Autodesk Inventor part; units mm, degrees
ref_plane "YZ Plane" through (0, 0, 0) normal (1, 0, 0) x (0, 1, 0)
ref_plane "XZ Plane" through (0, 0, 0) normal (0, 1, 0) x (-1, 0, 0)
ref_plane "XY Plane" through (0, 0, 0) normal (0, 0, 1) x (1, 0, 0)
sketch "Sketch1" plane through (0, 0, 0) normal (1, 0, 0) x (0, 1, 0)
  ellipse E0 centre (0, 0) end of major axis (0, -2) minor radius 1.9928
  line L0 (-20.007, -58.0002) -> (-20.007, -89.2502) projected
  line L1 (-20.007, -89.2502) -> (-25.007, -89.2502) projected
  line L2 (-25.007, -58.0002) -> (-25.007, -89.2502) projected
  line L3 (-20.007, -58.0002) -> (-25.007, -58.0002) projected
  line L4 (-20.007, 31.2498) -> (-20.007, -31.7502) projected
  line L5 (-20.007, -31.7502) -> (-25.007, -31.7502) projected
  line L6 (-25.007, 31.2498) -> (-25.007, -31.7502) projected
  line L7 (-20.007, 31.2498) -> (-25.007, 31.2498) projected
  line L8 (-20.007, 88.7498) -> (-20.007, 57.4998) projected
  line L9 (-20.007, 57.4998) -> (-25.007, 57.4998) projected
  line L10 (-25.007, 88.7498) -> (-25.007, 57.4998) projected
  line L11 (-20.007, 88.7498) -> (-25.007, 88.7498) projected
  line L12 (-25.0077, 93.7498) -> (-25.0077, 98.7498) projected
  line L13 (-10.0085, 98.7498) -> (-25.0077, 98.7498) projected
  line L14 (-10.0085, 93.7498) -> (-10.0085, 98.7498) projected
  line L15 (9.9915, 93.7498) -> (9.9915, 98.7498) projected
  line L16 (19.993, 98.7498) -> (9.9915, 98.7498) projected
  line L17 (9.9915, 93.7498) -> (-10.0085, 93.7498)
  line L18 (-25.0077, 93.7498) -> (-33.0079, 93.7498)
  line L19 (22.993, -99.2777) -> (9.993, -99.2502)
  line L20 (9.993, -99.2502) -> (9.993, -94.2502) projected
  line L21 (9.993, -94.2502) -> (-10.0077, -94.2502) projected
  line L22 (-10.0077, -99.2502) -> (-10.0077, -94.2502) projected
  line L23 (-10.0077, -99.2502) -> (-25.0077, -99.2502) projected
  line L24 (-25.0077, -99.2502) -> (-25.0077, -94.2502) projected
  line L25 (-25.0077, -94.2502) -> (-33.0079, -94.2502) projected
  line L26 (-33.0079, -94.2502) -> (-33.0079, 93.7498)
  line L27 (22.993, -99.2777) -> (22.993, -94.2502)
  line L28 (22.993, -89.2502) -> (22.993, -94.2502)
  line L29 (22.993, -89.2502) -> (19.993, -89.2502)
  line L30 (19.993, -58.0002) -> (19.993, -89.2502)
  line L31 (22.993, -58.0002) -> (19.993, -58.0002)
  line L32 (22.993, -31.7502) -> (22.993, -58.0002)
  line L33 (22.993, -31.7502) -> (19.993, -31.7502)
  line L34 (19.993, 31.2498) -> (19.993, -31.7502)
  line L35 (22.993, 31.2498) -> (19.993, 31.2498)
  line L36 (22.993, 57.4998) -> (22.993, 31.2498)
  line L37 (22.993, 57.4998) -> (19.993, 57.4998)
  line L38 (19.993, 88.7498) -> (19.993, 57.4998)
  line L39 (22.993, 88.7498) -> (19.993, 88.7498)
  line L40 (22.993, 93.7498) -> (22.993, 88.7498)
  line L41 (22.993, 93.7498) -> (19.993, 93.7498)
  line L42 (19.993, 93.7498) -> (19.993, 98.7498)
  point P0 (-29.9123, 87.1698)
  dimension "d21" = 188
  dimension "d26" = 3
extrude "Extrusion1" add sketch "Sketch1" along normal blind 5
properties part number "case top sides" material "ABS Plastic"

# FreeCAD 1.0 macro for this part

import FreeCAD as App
import Part
import Sketcher

V = App.Vector
Q = App.Units.Quantity


def add_polygon(sketch, points):
    """Adds a closed chain of lines whose ends are joined by coincident constraints."""
    first, n = sketch.GeometryCount, len(points)
    for a, b in zip(points, points[1:] + points[:1]):
        sketch.addGeometry(Part.LineSegment(App.Vector(*a, 0), App.Vector(*b, 0)), False)
    for i in range(n):
        sketch.addConstraint(Sketcher.Constraint("Coincident", first + i, 2, first + (i + 1) % n, 1))

doc = App.newDocument("Part")
body = doc.addObject("PartDesign::Body", "Body")

# Sketch on YZ plane
sketch1 = body.newObject("Sketcher::SketchObject", "Sketch")
sketch1.AttachmentSupport = (doc.getObject("YZ_Plane"), [""])
sketch1.MapMode = "FlatFace"
add_polygon(sketch1, [(-25.0077, 98.7498), (-25.0077, 93.7498), (-33.0079, 93.7498), (-33.0079, -94.2502), (-25.0077, -94.2502), (-25.0077, -99.2502), (-10.0077, -99.2502), (-10.0077, -94.2502), (9.993, -94.2502), (9.993, -99.2502), (22.993, -99.2777), (22.993, -89.2502), (19.993, -89.2502), (19.993, -58.0002), (22.993, -58.0002), (22.993, -31.7502), (19.993, -31.7502), (19.993, 31.2498), (22.993, 31.2498), (22.993, 57.4998), (19.993, 57.4998), (19.993, 88.7498), (22.993, 88.7498), (22.993, 93.7498), (19.993, 93.7498), (19.993, 98.7498), (9.9915, 98.7498), (9.9915, 93.7498), (-10.0085, 93.7498), (-10.0085, 98.7498)])  # lines 0-29
add_polygon(sketch1, [(-25.007, -58.0002), (-20.007, -58.0002), (-20.007, -89.2502), (-25.007, -89.2502)])  # lines 30-33
add_polygon(sketch1, [(-25.007, 31.2498), (-20.007, 31.2498), (-20.007, -31.7502), (-25.007, -31.7502)])  # lines 34-37
add_polygon(sketch1, [(-25.007, 88.7498), (-20.007, 88.7498), (-20.007, 57.4998), (-25.007, 57.4998)])  # lines 38-41
sketch1.addGeometry(Part.Ellipse(V(0, -2, 0), V(1.9928, 0, 0), V(0, 0, 0)), False)  # 42
sketch1.addConstraint([
    Sketcher.Constraint("Block", 42),
    Sketcher.Constraint("Vertical", 0),
    Sketcher.Constraint("Horizontal", 1),
    Sketcher.Constraint("Vertical", 2),
    Sketcher.Constraint("Horizontal", 3),
    Sketcher.Constraint("Vertical", 4),
    Sketcher.Constraint("Horizontal", 5),
    Sketcher.Constraint("Vertical", 6),
    Sketcher.Constraint("Horizontal", 7),
    Sketcher.Constraint("Vertical", 8),
    Sketcher.Constraint("Vertical", 10),
    Sketcher.Constraint("Horizontal", 11),
    Sketcher.Constraint("Vertical", 12),
    Sketcher.Constraint("Horizontal", 13),
    Sketcher.Constraint("Vertical", 14),
    Sketcher.Constraint("Horizontal", 15),
    Sketcher.Constraint("Vertical", 16),
    Sketcher.Constraint("Horizontal", 17),
    Sketcher.Constraint("Vertical", 18),
    Sketcher.Constraint("Horizontal", 19),
    Sketcher.Constraint("Vertical", 20),
    Sketcher.Constraint("Horizontal", 21),
    Sketcher.Constraint("Vertical", 22),
    Sketcher.Constraint("Horizontal", 23),
    Sketcher.Constraint("Vertical", 24),
    Sketcher.Constraint("Horizontal", 25),
    Sketcher.Constraint("Vertical", 26),
    Sketcher.Constraint("Horizontal", 27),
    Sketcher.Constraint("Vertical", 28),
    Sketcher.Constraint("Horizontal", 29),
    Sketcher.Constraint("Horizontal", 30),
    Sketcher.Constraint("Vertical", 31),
    Sketcher.Constraint("Horizontal", 32),
    Sketcher.Constraint("Vertical", 33),
    Sketcher.Constraint("Horizontal", 34),
    Sketcher.Constraint("Vertical", 35),
    Sketcher.Constraint("Horizontal", 36),
    Sketcher.Constraint("Vertical", 37),
    Sketcher.Constraint("Horizontal", 38),
    Sketcher.Constraint("Vertical", 39),
    Sketcher.Constraint("Horizontal", 40),
    Sketcher.Constraint("Vertical", 41),
    Sketcher.Constraint("Horizontal", 3, 2, 6, 2),
    Sketcher.Constraint("Horizontal", 5, 2, 8, 2),
    Sketcher.Constraint("Horizontal", 1, 2, 22, 2),
    Sketcher.Constraint("Horizontal", 23, 2, 26, 2),
    Sketcher.Constraint("Horizontal", 25, 2, 28, 2),
    Sketcher.Constraint("Horizontal", 13, 2, 30, 2),
    Sketcher.Constraint("Horizontal", 11, 2, 31, 2),
    Sketcher.Constraint("Horizontal", 17, 2, 34, 2),
    Sketcher.Constraint("Horizontal", 15, 2, 35, 2),
    Sketcher.Constraint("Horizontal", 21, 2, 38, 2),
    Sketcher.Constraint("Horizontal", 19, 2, 39, 2),
    Sketcher.Constraint("Vertical", 0, 2, 3, 2),
    Sketcher.Constraint("Vertical", 10, 2, 13, 2),
    Sketcher.Constraint("Vertical", 12, 2, 15, 2),
    Sketcher.Constraint("Vertical", 14, 2, 17, 2),
    Sketcher.Constraint("Vertical", 16, 2, 19, 2),
    Sketcher.Constraint("Vertical", 18, 2, 21, 2),
    Sketcher.Constraint("Vertical", 20, 2, 23, 2),
    Sketcher.Constraint("Vertical", 31, 2, 34, 2),
    Sketcher.Constraint("Vertical", 33, 2, 36, 2),
    Sketcher.Constraint("Vertical", 35, 2, 38, 2),
    Sketcher.Constraint("Vertical", 37, 2, 40, 2),
    Sketcher.Constraint("Equal", 40, 0),
    Sketcher.Constraint("Equal", 0, 4),
    Sketcher.Constraint("Equal", 14, 18),
    Sketcher.Constraint("Equal", 12, 20),
    Sketcher.Constraint("Equal", 8, 22),
    Sketcher.Constraint("DistanceX", 11, 2, 11, 1, Q("3 mm")),
    Sketcher.Constraint("DistanceY", 2, 2, 2, 1, Q("188 mm")),
    Sketcher.Constraint("DistanceX", 5, 1, 5, 2, Q("15 mm")),
    Sketcher.Constraint("DistanceX", 27, 2, 27, 1, Q("20 mm")),
    Sketcher.Constraint("DistanceX", 30, 1, 30, 2, Q("5 mm")),
    Sketcher.Constraint("DistanceY", 16, 1, 16, 2, Q("63 mm")),
    Sketcher.Constraint("Distance", 9, Q("13 mm")),
    Sketcher.Constraint("DistanceY", 7, 2, 10, 2, Q("5 mm")),
    Sketcher.Constraint("DistanceX", 30, 2, 12, 2, Q("40 mm")),
    Sketcher.Constraint("DistanceY", 12, 1, 12, 2, Q("31.25 mm")),
    Sketcher.Constraint("DistanceX", 1, 2, 1, 1, Q("8.0002 mm")),
    Sketcher.Constraint("DistanceX", 7, 1, 7, 2, Q("20.0007 mm")),
    Sketcher.Constraint("DistanceX", 25, 2, 25, 1, Q("10.0015 mm")),
    Sketcher.Constraint("DistanceY", 10, 1, 10, 2, Q("10.0275 mm")),
    Sketcher.Constraint("DistanceX", 1, 2, -1, 1, Q("33.008 mm")),
    Sketcher.Constraint("DistanceY", -1, 1, 0, 2, Q("93.7498 mm")),
])
pad1 = body.newObject("PartDesign::Pad", "Pad")
pad1.Profile = sketch1
pad1.Length = 5

doc.recompute()
